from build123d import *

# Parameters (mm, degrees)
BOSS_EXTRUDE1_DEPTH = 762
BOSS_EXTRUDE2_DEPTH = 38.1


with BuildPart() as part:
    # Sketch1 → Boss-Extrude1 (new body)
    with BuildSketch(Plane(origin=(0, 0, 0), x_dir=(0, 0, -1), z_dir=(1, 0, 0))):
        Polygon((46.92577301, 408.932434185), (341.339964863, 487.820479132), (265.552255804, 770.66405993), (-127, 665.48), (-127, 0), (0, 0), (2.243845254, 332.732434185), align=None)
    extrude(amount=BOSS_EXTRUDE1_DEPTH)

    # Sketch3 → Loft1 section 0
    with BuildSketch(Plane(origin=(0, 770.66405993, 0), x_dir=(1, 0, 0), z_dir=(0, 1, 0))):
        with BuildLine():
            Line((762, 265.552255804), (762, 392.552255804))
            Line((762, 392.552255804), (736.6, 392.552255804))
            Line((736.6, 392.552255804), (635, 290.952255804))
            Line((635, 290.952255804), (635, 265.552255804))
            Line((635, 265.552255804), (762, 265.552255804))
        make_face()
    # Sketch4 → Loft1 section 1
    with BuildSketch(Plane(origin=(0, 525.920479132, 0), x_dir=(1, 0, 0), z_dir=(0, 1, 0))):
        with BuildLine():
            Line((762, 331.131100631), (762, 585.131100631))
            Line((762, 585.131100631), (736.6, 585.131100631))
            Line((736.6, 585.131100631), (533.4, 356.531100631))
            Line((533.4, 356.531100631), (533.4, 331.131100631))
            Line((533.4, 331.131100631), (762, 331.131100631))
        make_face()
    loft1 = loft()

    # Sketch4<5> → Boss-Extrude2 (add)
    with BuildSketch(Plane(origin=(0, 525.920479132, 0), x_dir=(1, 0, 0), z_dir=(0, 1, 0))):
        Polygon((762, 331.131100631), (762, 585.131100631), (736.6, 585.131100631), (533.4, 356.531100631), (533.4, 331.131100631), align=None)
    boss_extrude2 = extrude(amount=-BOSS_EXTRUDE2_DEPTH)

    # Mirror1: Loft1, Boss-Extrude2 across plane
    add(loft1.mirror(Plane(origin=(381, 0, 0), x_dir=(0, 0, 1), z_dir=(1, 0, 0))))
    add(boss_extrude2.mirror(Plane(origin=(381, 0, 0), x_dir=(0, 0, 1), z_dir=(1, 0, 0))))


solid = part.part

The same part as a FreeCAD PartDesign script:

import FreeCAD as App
import Part
import Sketcher
Q = App.Units.Quantity


def add_polygon(sketch, points):
    """Adds a closed chain of lines whose ends are joined by coincident constraints."""
    first, n = sketch.GeometryCount, len(points)
    for a, b in zip(points, points[1:] + points[:1]):
        sketch.addGeometry(Part.LineSegment(App.Vector(*a, 0), App.Vector(*b, 0)), False)
    for i in range(n):
        sketch.addConstraint(Sketcher.Constraint("Coincident", first + i, 2, first + (i + 1) % n, 1))

doc = App.newDocument("Part")
params = doc.addObject("Spreadsheet::Sheet", "Params")
for row, (alias, value) in enumerate([
    ("sketch1_height", "5 in"),
    ("sketch1_length", "12 in"),
    ("sketch1_length2", "16 in"),
    ("sketch1_width", "26.2 in"),
    ("sketch1_length3", "13.1 in"),
    ("pad1_length", "30 in"),
    ("sketch2_width", "1 in"),
    ("sketch2_width2", "5 in"),
    ("sketch3_width", "1 in"),
    ("sketch3_width2", "9 in"),
    ("sketch3_height", "10 in"),
    ("sketch4_width", "1 in"),
    ("sketch4_width2", "9 in"),
    ("sketch4_height", "10 in"),
    ("pad2_length", "1.5 in"),
], start=1):
    params.set(f"A{row}", alias)
    params.set(f"B{row}", "=" + value)
    params.setAlias(f"B{row}", alias)

body = doc.addObject("PartDesign::Body", "Body")

sketch1 = body.newObject("Sketcher::SketchObject", "Sketch")
sketch1.AttachmentSupport = (doc.getObject("YZ_Plane"), [""])
sketch1.MapMode = "FlatFace"
add_polygon(sketch1, [(408.932434, -46.925773), (487.820479, -341.339965), (770.66406, -265.552256), (665.48, 127), (0, 127), (0, 0), (332.732434, -2.243845)])
sketch1.addConstraint(Sketcher.Constraint("Horizontal", 3))
sketch1.addConstraint(Sketcher.Constraint("Vertical", 4))
sketch1.addConstraint(Sketcher.Constraint("Coincident", 4, 2, -1, 1))
sketch1.addConstraint(Sketcher.Constraint("Perpendicular", 0, 1))
sketch1.addConstraint(Sketcher.Constraint("Perpendicular", 1, 2))
sketch1.addConstraint(Sketcher.Constraint("DistanceY", 4, 2, 4, 1, Q("5 in")))
sketch1.addConstraint(Sketcher.Constraint("Distance", 0, Q("12 in")))
sketch1.addConstraint(Sketcher.Constraint("Distance", 2, Q("16 in")))
sketch1.addConstraint(Sketcher.Constraint("DistanceX", 3, 2, 3, 1, Q("26.2 in")))
sketch1.addConstraint(Sketcher.Constraint("Angle", 0, Q("-75 deg")))
sketch1.addConstraint(Sketcher.Constraint("DistanceX", 5, 2, 6, 2, Q("3 in")))
sketch1.addConstraint(Sketcher.Constraint("Distance", 5, Q("13.1 in")))
sketch1.addConstraint(Sketcher.Constraint("Distance", 1, Q("292.821222 mm")))
sketch1.setExpression("Constraints[12]", "Params.sketch1_height")
sketch1.setExpression("Constraints[13]", "Params.sketch1_length")
sketch1.setExpression("Constraints[14]", "Params.sketch1_length2")
sketch1.setExpression("Constraints[15]", "Params.sketch1_width")
sketch1.setExpression("Constraints[18]", "Params.sketch1_length3")
pad1 = body.newObject("PartDesign::Pad", "Pad")
pad1.Profile = sketch1
pad1.setExpression("Length", "Params.pad1_length")

sketch2 = body.newObject("Sketcher::SketchObject", "Sketch001")
sketch2.AttachmentSupport = (doc.getObject("XZ_Plane"), [""])
sketch2.MapMode = "FlatFace"
sketch2.AttachmentOffset = App.Placement(App.Vector(0, 0, -770.66406), App.Rotation())
add_polygon(sketch2, [(762, -265.552256), (762, -392.552256), (736.6, -392.552256), (635, -290.952256), (635, -265.552256)])
sketch2.addConstraint(Sketcher.Constraint("Vertical", 0))
sketch2.addConstraint(Sketcher.Constraint("Horizontal", 1))
sketch2.addConstraint(Sketcher.Constraint("Vertical", 3))
sketch2.addConstraint(Sketcher.Constraint("Horizontal", 4))
sketch2.addConstraint(Sketcher.Constraint("Equal", 4, 0))
sketch2.addConstraint(Sketcher.Constraint("Equal", 1, 3))
sketch2.addConstraint(Sketcher.Constraint("DistanceX", 1, 2, 1, 1, Q("1 in")))
sketch2.addConstraint(Sketcher.Constraint("DistanceX", 4, 1, 4, 2, Q("5 in")))
sketch2.addConstraint(Sketcher.Constraint("DistanceX", -1, 1, 0, 2, Q("30 in")))
sketch2.addConstraint(Sketcher.Constraint("DistanceY", 0, 2, -1, 1, Q("392.552256 mm")))
sketch2.setExpression("Constraints[11]", "Params.sketch2_width")
sketch2.setExpression("Constraints[12]", "Params.sketch2_width2")

sketch3 = body.newObject("Sketcher::SketchObject", "Sketch002")
sketch3.AttachmentSupport = (doc.getObject("XZ_Plane"), [""])
sketch3.MapMode = "FlatFace"
sketch3.AttachmentOffset = App.Placement(App.Vector(0, 0, -525.920479), App.Rotation())
add_polygon(sketch3, [(762, -331.131101), (762, -585.131101), (736.6, -585.131101), (533.4, -356.531101), (533.4, -331.131101)])
sketch3.addConstraint(Sketcher.Constraint("Vertical", 0))
sketch3.addConstraint(Sketcher.Constraint("Horizontal", 1))
sketch3.addConstraint(Sketcher.Constraint("Vertical", 3))
sketch3.addConstraint(Sketcher.Constraint("Horizontal", 4))
sketch3.addConstraint(Sketcher.Constraint("Equal", 1, 3))
sketch3.addConstraint(Sketcher.Constraint("DistanceX", 1, 2, 1, 1, Q("1 in")))
sketch3.addConstraint(Sketcher.Constraint("DistanceX", 4, 1, 4, 2, Q("9 in")))
sketch3.addConstraint(Sketcher.Constraint("DistanceY", 0, 2, 0, 1, Q("10 in")))
sketch3.addConstraint(Sketcher.Constraint("DistanceX", -1, 1, 0, 2, Q("30 in")))
sketch3.addConstraint(Sketcher.Constraint("DistanceY", 0, 2, -1, 1, Q("585.131101 mm")))
sketch3.setExpression("Constraints[10]", "Params.sketch3_width")
sketch3.setExpression("Constraints[11]", "Params.sketch3_width2")
sketch3.setExpression("Constraints[12]", "Params.sketch3_height")

additiveloft = body.newObject("PartDesign::AdditiveLoft", "AdditiveLoft")
additiveloft.Profile = sketch2
additiveloft.Sections = [sketch3]

sketch4 = body.newObject("Sketcher::SketchObject", "Sketch003")
sketch4.AttachmentSupport = (doc.getObject("XZ_Plane"), [""])
sketch4.MapMode = "FlatFace"
sketch4.AttachmentOffset = App.Placement(App.Vector(0, 0, -525.920479), App.Rotation())
add_polygon(sketch4, [(762, -331.131101), (762, -585.131101), (736.6, -585.131101), (533.4, -356.531101), (533.4, -331.131101)])
sketch4.addConstraint(Sketcher.Constraint("Vertical", 0))
sketch4.addConstraint(Sketcher.Constraint("Horizontal", 1))
sketch4.addConstraint(Sketcher.Constraint("Vertical", 3))
sketch4.addConstraint(Sketcher.Constraint("Horizontal", 4))
sketch4.addConstraint(Sketcher.Constraint("Equal", 1, 3))
sketch4.addConstraint(Sketcher.Constraint("DistanceX", 1, 2, 1, 1, Q("1 in")))
sketch4.addConstraint(Sketcher.Constraint("DistanceX", 4, 1, 4, 2, Q("9 in")))
sketch4.addConstraint(Sketcher.Constraint("DistanceY", 0, 2, 0, 1, Q("10 in")))
sketch4.addConstraint(Sketcher.Constraint("DistanceX", -1, 1, 0, 2, Q("30 in")))
sketch4.addConstraint(Sketcher.Constraint("DistanceY", 0, 2, -1, 1, Q("585.131101 mm")))
sketch4.setExpression("Constraints[10]", "Params.sketch4_width")
sketch4.setExpression("Constraints[11]", "Params.sketch4_width2")
sketch4.setExpression("Constraints[12]", "Params.sketch4_height")
pad2 = body.newObject("PartDesign::Pad", "Pad001")
pad2.Profile = sketch4
pad2.setExpression("Length", "Params.pad2_length")
doc.recompute()

datumplane = body.newObject("PartDesign::Plane", "DatumPlane")
datumplane.AttachmentSupport = (doc.getObject("YZ_Plane"), [""])
datumplane.MapMode = "FlatFace"
datumplane.AttachmentOffset = App.Placement(App.Vector(0, 0, 15 * 25.4), App.Rotation())
mirrored = body.newObject("PartDesign::Mirrored", "Mirrored")
mirrored.Originals = [additiveloft, pad2]
mirrored.MirrorPlane = (datumplane, [""])
body.Tip = mirrored

doc.recompute()
